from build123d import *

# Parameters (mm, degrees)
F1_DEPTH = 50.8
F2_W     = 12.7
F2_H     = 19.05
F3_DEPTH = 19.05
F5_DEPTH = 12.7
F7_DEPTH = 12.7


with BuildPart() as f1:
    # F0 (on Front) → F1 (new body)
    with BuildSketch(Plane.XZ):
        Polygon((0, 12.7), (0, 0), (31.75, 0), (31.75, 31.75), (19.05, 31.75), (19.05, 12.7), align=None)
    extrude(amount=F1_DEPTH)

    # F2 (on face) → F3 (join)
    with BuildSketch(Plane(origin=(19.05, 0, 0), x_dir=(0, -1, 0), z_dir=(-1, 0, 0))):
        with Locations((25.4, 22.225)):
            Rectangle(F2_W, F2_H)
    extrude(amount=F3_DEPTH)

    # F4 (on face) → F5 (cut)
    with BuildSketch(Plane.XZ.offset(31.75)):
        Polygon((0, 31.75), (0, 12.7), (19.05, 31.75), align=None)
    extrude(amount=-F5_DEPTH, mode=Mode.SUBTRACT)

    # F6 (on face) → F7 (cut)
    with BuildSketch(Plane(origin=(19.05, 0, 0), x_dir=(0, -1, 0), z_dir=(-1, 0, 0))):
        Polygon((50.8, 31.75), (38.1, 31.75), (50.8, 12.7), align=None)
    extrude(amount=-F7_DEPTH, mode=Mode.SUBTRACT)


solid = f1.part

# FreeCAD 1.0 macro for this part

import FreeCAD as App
import Part
import Sketcher
from FreeCAD import Vector
Q = App.Units.Quantity


def add_polygon(sketch, points):
    """Adds a closed chain of lines whose ends are joined by coincident constraints."""
    first, n = sketch.GeometryCount, len(points)
    for a, b in zip(points, points[1:] + points[:1]):
        sketch.addGeometry(Part.LineSegment(App.Vector(*a, 0), App.Vector(*b, 0)), False)
    for i in range(n):
        sketch.addConstraint(Sketcher.Constraint("Coincident", first + i, 2, first + (i + 1) % n, 1))

doc = App.newDocument("Part")
body = doc.addObject("PartDesign::Body", "Body")

sketch1 = body.newObject("Sketcher::SketchObject", "Sketch")
sketch1.AttachmentSupport = (doc.getObject("XZ_Plane"), [""])
sketch1.MapMode = "FlatFace"
add_polygon(sketch1, [(0, 13), (0, 0), (32, 0), (32, 32), (19, 32), (19, 13)])
sketch1.addConstraint([
    Sketcher.Constraint("Vertical", 0),
    Sketcher.Constraint("Horizontal", 1),
    Sketcher.Constraint("Vertical", 2),
    Sketcher.Constraint("Horizontal", 3),
    Sketcher.Constraint("Vertical", 4),
    Sketcher.Constraint("Horizontal", 5),
    Sketcher.Constraint("Coincident", 0, 2, -1, 1),
    Sketcher.Constraint("Equal", 3, 0),
    Sketcher.Constraint("Equal", 1, 2),
    Sketcher.Constraint("DistanceX", 3, 2, 3, 1, Q("0.5 in")),
    Sketcher.Constraint("DistanceX", 1, 1, 1, 2, Q("1.25 in")),
])
pad1 = body.newObject("PartDesign::Pad", "Pad")
pad1.Profile = sketch1
pad1.Length = Q("2 in")

sketch2 = body.newObject("Sketcher::SketchObject", "Sketch001")
sketch2.AttachmentSupport = (doc.getObject("YZ_Plane"), [""])
sketch2.MapMode = "FlatFace"
sketch2.AttachmentOffset = App.Placement(Vector(0, 0, 0.75 * 25.4), App.Rotation())
add_polygon(sketch2, [(-19, 32), (-19, 13), (-32, 13), (-32, 32)])
sketch2.addConstraint([
    Sketcher.Constraint("Vertical", 0),
    Sketcher.Constraint("Horizontal", 1),
    Sketcher.Constraint("Vertical", 2),
    Sketcher.Constraint("Horizontal", 3),
    Sketcher.Constraint("DistanceX", 1, 2, 1, 1, Q("0.5 in")),
    Sketcher.Constraint("DistanceY", 0, 2, 0, 1, Q("0.75 in")),
    Sketcher.Constraint("DistanceY", -1, 1, 0, 2, Q("0.5 in")),
    Sketcher.Constraint("DistanceX", 0, 2, -1, 1, Q("0.75 in")),
])
pad2 = body.newObject("PartDesign::Pad", "Pad001")
pad2.Profile = sketch2
pad2.Length = Q("0.75 in")
pad2.Reversed = True

sketch3 = body.newObject("Sketcher::SketchObject", "Sketch002")
sketch3.AttachmentSupport = (doc.getObject("XZ_Plane"), [""])
sketch3.MapMode = "FlatFace"
sketch3.AttachmentOffset = App.Placement(Vector(0, 0, 1.25 * 25.4), App.Rotation())
add_polygon(sketch3, [(0, 32), (0, 13), (19, 32)])
sketch3.addConstraint([
    Sketcher.Constraint("Vertical", 0),
    Sketcher.Constraint("Horizontal", 2),
    Sketcher.Constraint("PointOnObject", 0, 2, -2),
    Sketcher.Constraint("Equal", 2, 0),
    Sketcher.Constraint("DistanceX", 2, 2, 2, 1, Q("0.75 in")),
    Sketcher.Constraint("DistanceY", -1, 1, 0, 2, Q("0.5 in")),
])
pocket1 = body.newObject("PartDesign::Pocket", "Pocket")
pocket1.Profile = sketch3
pocket1.Length = Q("0.5 in")

sketch4 = body.newObject("Sketcher::SketchObject", "Sketch003")
sketch4.AttachmentSupport = (doc.getObject("YZ_Plane"), [""])
sketch4.MapMode = "FlatFace"
sketch4.AttachmentOffset = App.Placement(Vector(0, 0, 0.75 * 25.4), App.Rotation())
add_polygon(sketch4, [(-51, 32), (-38, 32), (-51, 13)])
sketch4.addConstraint([
    Sketcher.Constraint("Horizontal", 0),
    Sketcher.Constraint("Vertical", 2),
    Sketcher.Constraint("DistanceX", 0, 1, 0, 2, Q("0.5 in")),
    Sketcher.Constraint("DistanceX", 1, 2, -1, 1, Q("2 in")),
    Sketcher.Constraint("DistanceY", 2, 1, 2, 2, Q("0.75 in")),
    Sketcher.Constraint("DistanceY", -1, 1, 1, 2, Q("0.5 in")),
])
pocket2 = body.newObject("PartDesign::Pocket", "Pocket001")
pocket2.Profile = sketch4
pocket2.Length = Q("0.5 in")
pocket2.Reversed = True

doc.recompute()
